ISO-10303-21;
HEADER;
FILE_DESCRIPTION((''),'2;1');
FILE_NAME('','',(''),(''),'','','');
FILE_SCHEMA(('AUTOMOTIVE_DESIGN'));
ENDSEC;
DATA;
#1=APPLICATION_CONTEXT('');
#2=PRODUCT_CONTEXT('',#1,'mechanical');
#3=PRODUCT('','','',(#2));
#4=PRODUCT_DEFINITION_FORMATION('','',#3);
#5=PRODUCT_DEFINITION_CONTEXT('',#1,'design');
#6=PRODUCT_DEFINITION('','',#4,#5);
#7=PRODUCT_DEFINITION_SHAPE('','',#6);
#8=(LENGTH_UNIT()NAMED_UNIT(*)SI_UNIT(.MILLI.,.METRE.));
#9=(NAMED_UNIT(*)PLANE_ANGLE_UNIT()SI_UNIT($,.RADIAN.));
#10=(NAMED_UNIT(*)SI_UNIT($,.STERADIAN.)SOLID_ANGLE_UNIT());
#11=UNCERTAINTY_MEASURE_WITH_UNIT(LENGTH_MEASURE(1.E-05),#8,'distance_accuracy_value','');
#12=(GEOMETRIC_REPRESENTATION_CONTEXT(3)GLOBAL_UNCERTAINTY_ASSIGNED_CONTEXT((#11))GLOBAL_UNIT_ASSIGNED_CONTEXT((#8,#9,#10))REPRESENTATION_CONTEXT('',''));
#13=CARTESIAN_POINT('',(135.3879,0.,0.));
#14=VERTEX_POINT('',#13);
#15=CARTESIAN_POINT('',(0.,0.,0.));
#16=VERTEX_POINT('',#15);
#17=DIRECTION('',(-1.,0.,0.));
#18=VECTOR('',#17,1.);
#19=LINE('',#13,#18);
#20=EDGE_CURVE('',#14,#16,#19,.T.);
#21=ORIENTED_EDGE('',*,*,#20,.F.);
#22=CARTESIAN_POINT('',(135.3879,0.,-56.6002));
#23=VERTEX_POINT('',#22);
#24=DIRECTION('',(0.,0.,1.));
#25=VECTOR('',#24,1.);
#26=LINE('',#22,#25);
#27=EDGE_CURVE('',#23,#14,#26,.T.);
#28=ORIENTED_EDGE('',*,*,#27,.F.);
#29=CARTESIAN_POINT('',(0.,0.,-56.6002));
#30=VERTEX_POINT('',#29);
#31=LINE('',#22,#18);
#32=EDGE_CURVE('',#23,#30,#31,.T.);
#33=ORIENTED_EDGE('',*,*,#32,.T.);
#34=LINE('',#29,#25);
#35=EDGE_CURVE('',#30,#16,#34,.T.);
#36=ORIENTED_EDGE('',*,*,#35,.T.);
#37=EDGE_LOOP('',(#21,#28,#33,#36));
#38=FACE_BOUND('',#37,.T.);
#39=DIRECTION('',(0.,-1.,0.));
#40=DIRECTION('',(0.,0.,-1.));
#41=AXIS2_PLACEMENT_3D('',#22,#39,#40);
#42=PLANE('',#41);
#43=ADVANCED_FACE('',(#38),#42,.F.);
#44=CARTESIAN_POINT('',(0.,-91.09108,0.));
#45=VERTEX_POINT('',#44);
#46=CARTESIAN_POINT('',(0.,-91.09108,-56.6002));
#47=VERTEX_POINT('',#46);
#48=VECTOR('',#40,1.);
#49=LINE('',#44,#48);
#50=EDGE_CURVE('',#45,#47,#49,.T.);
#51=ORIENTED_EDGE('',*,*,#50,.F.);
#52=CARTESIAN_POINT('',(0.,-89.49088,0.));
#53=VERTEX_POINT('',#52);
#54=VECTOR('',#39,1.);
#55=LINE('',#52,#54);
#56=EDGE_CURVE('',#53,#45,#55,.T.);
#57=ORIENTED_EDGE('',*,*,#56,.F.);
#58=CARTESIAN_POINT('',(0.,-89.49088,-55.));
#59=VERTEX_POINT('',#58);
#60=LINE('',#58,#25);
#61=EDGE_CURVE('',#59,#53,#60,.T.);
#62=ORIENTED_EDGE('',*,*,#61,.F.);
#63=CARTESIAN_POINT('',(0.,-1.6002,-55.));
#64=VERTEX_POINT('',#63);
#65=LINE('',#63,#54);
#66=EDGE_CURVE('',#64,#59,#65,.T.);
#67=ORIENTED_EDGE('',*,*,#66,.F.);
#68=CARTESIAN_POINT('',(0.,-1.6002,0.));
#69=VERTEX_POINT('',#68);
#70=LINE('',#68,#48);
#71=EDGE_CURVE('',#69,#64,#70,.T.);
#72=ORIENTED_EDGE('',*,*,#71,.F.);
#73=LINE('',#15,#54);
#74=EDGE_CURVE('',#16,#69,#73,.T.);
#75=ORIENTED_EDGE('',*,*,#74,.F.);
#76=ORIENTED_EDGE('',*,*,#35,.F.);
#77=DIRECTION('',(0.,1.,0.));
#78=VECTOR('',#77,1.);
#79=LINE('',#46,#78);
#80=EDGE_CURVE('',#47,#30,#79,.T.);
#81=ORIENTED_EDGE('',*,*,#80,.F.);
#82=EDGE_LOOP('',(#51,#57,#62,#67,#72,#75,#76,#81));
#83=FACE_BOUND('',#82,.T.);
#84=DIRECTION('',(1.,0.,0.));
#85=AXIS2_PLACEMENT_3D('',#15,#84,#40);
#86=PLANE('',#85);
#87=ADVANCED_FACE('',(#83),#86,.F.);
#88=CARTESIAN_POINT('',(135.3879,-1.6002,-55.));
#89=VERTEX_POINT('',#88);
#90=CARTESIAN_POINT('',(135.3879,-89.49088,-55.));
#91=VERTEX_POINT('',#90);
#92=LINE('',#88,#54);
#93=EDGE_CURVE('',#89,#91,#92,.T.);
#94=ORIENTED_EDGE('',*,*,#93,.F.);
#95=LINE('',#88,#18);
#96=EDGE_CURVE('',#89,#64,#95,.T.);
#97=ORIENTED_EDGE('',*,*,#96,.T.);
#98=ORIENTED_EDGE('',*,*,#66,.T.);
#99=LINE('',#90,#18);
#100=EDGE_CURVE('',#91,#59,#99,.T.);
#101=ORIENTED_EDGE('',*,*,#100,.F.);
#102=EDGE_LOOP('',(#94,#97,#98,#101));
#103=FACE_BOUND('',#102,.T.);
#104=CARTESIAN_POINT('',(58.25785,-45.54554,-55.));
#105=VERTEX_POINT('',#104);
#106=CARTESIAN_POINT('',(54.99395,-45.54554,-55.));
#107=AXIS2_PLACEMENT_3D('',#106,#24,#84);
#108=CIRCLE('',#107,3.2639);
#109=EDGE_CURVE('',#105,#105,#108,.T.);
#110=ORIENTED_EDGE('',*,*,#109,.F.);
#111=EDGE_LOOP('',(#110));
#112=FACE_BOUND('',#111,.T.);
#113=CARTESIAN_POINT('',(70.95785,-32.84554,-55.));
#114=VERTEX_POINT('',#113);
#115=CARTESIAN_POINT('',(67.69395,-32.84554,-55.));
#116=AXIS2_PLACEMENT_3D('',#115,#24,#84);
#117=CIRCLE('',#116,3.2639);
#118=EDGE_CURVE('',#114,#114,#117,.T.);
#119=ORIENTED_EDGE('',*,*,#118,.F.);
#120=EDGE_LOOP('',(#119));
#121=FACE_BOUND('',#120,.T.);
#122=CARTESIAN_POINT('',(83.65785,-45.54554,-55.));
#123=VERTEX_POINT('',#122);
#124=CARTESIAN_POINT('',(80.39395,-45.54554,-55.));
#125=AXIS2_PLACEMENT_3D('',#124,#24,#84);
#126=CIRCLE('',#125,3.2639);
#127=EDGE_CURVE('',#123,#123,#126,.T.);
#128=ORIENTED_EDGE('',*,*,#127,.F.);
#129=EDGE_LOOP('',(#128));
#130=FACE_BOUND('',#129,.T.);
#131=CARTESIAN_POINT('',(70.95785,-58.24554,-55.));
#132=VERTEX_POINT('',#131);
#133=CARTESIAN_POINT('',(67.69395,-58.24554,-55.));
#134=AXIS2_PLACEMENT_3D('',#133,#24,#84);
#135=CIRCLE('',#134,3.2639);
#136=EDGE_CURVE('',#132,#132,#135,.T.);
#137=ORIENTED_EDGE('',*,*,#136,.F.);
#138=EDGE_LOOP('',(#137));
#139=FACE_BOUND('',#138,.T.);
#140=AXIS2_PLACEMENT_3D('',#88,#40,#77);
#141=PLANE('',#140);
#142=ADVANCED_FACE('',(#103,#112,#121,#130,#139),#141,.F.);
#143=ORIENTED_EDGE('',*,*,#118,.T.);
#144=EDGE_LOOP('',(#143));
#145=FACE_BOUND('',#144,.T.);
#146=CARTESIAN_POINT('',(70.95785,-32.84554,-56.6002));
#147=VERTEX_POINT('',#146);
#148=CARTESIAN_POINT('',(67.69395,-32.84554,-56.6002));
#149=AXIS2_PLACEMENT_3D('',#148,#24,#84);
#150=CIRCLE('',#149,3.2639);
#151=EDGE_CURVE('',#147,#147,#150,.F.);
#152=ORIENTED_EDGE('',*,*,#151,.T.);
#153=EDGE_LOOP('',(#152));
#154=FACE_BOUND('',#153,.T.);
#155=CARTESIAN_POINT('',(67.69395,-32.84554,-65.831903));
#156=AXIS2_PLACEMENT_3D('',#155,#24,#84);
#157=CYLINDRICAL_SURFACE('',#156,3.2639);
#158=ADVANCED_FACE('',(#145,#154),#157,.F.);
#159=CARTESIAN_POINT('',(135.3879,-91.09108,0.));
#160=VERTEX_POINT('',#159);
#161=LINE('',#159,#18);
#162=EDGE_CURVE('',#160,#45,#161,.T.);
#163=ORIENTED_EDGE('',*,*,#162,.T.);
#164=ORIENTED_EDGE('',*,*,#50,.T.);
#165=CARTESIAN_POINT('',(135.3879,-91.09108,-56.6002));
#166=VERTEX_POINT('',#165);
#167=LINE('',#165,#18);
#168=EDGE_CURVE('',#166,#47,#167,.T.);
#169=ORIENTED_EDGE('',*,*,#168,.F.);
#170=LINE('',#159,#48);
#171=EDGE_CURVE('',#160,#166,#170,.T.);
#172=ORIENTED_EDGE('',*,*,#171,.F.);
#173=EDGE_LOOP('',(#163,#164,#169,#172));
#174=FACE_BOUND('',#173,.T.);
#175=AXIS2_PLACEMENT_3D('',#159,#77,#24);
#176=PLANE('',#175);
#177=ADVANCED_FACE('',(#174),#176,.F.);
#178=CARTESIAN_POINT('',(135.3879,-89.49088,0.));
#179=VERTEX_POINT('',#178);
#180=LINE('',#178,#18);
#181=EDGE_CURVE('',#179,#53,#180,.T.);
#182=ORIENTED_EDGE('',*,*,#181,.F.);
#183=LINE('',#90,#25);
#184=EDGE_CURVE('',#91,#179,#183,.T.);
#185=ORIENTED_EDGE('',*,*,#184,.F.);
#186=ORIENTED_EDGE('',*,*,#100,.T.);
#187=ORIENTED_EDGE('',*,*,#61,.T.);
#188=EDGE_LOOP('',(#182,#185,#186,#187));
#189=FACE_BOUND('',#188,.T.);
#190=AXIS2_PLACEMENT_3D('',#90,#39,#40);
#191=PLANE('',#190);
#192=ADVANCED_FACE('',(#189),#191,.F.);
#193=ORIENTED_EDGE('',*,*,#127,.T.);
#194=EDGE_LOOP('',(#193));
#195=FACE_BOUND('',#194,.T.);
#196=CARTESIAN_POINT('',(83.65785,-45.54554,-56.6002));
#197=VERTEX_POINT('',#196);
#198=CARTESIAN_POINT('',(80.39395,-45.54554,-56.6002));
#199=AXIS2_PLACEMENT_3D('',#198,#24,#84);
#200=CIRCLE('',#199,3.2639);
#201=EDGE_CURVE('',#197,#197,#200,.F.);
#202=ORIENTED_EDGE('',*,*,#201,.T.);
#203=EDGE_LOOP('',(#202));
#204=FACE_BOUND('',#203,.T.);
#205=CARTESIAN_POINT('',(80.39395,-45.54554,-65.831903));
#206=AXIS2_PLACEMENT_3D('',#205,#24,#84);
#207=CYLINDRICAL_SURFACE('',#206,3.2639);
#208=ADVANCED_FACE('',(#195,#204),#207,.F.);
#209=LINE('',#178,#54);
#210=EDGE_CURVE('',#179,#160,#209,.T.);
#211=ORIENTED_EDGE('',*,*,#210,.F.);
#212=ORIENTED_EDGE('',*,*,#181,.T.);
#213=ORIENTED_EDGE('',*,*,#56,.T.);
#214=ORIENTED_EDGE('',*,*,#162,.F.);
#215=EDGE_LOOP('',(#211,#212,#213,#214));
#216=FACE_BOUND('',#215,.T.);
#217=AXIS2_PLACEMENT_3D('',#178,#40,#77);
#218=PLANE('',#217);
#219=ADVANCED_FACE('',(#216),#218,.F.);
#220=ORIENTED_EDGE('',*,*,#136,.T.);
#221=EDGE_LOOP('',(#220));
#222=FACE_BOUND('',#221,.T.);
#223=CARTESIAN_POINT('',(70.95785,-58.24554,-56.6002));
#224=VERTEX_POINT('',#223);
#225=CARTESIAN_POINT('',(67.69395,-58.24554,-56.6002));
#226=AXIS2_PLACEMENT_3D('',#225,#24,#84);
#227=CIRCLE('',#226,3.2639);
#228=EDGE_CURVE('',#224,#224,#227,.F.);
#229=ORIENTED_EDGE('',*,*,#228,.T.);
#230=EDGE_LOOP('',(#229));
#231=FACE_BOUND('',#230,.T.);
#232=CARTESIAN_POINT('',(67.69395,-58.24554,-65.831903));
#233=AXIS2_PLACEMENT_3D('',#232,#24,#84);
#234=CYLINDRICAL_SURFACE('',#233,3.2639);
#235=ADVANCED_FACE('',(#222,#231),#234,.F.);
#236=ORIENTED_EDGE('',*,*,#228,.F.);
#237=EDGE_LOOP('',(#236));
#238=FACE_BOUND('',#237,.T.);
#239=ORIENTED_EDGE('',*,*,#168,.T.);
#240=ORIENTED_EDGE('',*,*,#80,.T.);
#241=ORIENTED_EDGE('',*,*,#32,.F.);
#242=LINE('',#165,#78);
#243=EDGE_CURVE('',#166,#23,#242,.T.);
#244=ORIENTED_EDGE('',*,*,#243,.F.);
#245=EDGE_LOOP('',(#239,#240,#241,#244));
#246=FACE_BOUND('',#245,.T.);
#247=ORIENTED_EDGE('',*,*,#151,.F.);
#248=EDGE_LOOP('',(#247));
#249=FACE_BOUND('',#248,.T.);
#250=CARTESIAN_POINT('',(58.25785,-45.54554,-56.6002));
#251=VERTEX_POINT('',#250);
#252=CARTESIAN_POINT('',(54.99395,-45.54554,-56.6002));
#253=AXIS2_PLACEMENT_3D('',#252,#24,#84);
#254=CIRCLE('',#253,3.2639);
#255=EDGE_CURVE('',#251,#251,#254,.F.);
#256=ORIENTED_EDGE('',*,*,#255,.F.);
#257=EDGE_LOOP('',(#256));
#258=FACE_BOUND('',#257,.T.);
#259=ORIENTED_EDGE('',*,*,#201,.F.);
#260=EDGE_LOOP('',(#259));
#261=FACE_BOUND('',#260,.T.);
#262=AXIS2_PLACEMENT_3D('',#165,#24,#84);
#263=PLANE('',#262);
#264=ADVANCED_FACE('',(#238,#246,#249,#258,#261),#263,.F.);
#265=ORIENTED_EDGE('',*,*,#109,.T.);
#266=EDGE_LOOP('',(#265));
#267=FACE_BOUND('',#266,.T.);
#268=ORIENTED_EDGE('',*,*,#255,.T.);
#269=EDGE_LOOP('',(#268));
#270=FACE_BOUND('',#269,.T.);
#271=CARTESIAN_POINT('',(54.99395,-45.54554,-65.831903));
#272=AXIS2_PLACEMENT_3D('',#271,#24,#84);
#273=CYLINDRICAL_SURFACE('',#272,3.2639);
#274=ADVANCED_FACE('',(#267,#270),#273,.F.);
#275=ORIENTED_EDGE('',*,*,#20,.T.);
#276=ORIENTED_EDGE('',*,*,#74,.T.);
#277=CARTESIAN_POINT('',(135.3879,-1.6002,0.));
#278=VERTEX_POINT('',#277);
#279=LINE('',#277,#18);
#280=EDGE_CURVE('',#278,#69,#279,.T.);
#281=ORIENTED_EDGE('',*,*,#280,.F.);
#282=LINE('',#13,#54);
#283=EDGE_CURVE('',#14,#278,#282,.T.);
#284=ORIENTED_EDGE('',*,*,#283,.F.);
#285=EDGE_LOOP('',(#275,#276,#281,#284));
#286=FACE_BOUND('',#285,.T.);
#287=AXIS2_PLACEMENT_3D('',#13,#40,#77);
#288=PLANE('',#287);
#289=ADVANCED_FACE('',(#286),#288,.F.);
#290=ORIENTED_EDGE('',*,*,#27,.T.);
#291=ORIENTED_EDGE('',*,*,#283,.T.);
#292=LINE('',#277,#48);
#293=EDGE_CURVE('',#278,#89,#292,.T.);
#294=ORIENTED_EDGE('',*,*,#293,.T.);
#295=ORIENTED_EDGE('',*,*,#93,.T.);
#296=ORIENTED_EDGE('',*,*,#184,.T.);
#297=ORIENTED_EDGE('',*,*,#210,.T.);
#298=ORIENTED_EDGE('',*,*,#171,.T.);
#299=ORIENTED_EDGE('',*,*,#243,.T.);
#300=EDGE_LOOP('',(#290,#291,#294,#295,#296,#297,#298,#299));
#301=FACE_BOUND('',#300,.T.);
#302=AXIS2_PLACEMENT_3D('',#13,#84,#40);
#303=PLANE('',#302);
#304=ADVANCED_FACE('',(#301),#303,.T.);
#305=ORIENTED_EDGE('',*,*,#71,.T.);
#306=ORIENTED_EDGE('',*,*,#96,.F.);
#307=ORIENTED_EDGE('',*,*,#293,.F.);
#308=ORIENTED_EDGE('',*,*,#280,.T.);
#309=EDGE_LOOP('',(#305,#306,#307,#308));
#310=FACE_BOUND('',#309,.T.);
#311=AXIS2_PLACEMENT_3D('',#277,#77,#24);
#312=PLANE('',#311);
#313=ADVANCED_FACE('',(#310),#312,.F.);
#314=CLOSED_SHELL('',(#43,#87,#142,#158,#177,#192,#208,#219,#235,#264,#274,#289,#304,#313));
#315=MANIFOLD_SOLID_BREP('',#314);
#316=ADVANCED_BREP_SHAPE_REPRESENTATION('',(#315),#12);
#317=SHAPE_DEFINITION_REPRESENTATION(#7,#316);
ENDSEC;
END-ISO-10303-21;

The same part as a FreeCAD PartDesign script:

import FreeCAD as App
import Part
import Sketcher

V = App.Vector
Q = App.Units.Quantity

doc = App.newDocument("Part")
body = doc.addObject("PartDesign::Body", "Body")

# Sketch on YZ plane
sketch1 = doc.addObject("Sketcher::SketchObject", "Sketch")
body.addObject(sketch1)
sketch1.AttachmentSupport = (doc.YZ_Plane, [""])
sketch1.MapMode = "FlatFace"
sketch1.addGeometry([
    Part.LineSegment(V(0, 0, 0), V(-1.6, 0, 0)),  # 0
    Part.LineSegment(V(-1.6, 0, 0), V(-1.6, -55, 0)),  # 1
    Part.LineSegment(V(-1.6, -55, 0), V(-89.5, -55, 0)),  # 2
    Part.LineSegment(V(-89.5, -55, 0), V(-89.5, 0, 0)),  # 3
    Part.LineSegment(V(-89.5, 0, 0), V(-91.1, 0, 0)),  # 4
    Part.LineSegment(V(-91.1, 0, 0), V(-91.1, -56.6, 0)),  # 5
    Part.LineSegment(V(-91.1, -56.6, 0), V(0, -56.6, 0)),  # 6
    Part.LineSegment(V(0, -56.6, 0), V(0, 0, 0)),  # 7
], False)
sketch1.addConstraint([
    Sketcher.Constraint("Coincident", 0, 2, 1, 1),
    Sketcher.Constraint("Coincident", 1, 2, 2, 1),
    Sketcher.Constraint("Coincident", 2, 2, 3, 1),
    Sketcher.Constraint("Coincident", 3, 2, 4, 1),
    Sketcher.Constraint("Coincident", 4, 2, 5, 1),
    Sketcher.Constraint("Coincident", 5, 2, 6, 1),
    Sketcher.Constraint("Coincident", 6, 2, 7, 1),
    Sketcher.Constraint("Coincident", 7, 2, 0, 1),
    Sketcher.Constraint("Horizontal", 0),
    Sketcher.Constraint("Vertical", 1),
    Sketcher.Constraint("Horizontal", 2),
    Sketcher.Constraint("Vertical", 3),
    Sketcher.Constraint("Horizontal", 4),
    Sketcher.Constraint("Vertical", 5),
    Sketcher.Constraint("Horizontal", 6),
    Sketcher.Constraint("Vertical", 7),
    Sketcher.Constraint("Coincident", 7, 2, -1, 1),
    Sketcher.Constraint("PointOnObject", 3, 2, -1),
    Sketcher.Constraint("Equal", 0, 4),
    Sketcher.Constraint("DistanceX", 0, 2, 0, 1, Q("0.063 in")),
    Sketcher.Constraint("DistanceY", 5, 2, 2, 2, Q("0.063 in")),
    Sketcher.Constraint("DistanceY", 1, 2, 1, 1, 55.0),
    Sketcher.Constraint("DistanceX", 2, 2, 2, 1, 87.89068),
])
pad1 = doc.addObject("PartDesign::Pad", "Pad")
body.addObject(pad1)
pad1.Profile = sketch1
pad1.Length = 135.3879

# Sketch on XY plane
sketch2 = doc.addObject("Sketcher::SketchObject", "Sketch001")
body.addObject(sketch2)
sketch2.AttachmentSupport = (doc.XY_Plane, [""])
sketch2.MapMode = "FlatFace"
sketch2.AttachmentOffset = App.Placement(V(0, 0, -55), App.Rotation())
sketch2.addGeometry([
    Part.Circle(V(67.7, -32.8, 0), V(0, 0, 1), 3.3),
    Part.Circle(V(67.7, -58.2, 0), V(0, 0, 1), 3.3),
    Part.Circle(V(55, -45.5, 0), V(0, 0, 1), 3.3),
    Part.Circle(V(80.4, -45.5, 0), V(0, 0, 1), 3.3),
], False)
sketch2.addConstraint([
    Sketcher.Constraint("Equal", 0, 1),
    Sketcher.Constraint("Equal", 1, 2),
    Sketcher.Constraint("Equal", 2, 3),
    Sketcher.Constraint("Horizontal", 2, 3, 3, 3),
    Sketcher.Constraint("Vertical", 0, 3, 1, 3),
    Sketcher.Constraint("Diameter", 0, Q("0.257 in")),
    Sketcher.Constraint("DistanceY", 1, 3, 0, 3, Q("1 in")),
    Sketcher.Constraint("DistanceX", 2, 3, 3, 3, Q("1 in")),
    Sketcher.Constraint("DistanceX", 2, 3, 1, 3, Q("0.5 in")),
    Sketcher.Constraint("DistanceY", 1, 3, 2, 3, Q("0.5 in")),
    Sketcher.Constraint("DistanceX", -1, 1, 0, 3, 67.69395),
    Sketcher.Constraint("DistanceY", 0, 3, -1, 1, 32.84554),
])
pocket1 = doc.addObject("PartDesign::Pocket", "Pocket")
body.addObject(pocket1)
pocket1.Profile = sketch2
pocket1.Length = Q("0.063 in")

doc.recompute()
